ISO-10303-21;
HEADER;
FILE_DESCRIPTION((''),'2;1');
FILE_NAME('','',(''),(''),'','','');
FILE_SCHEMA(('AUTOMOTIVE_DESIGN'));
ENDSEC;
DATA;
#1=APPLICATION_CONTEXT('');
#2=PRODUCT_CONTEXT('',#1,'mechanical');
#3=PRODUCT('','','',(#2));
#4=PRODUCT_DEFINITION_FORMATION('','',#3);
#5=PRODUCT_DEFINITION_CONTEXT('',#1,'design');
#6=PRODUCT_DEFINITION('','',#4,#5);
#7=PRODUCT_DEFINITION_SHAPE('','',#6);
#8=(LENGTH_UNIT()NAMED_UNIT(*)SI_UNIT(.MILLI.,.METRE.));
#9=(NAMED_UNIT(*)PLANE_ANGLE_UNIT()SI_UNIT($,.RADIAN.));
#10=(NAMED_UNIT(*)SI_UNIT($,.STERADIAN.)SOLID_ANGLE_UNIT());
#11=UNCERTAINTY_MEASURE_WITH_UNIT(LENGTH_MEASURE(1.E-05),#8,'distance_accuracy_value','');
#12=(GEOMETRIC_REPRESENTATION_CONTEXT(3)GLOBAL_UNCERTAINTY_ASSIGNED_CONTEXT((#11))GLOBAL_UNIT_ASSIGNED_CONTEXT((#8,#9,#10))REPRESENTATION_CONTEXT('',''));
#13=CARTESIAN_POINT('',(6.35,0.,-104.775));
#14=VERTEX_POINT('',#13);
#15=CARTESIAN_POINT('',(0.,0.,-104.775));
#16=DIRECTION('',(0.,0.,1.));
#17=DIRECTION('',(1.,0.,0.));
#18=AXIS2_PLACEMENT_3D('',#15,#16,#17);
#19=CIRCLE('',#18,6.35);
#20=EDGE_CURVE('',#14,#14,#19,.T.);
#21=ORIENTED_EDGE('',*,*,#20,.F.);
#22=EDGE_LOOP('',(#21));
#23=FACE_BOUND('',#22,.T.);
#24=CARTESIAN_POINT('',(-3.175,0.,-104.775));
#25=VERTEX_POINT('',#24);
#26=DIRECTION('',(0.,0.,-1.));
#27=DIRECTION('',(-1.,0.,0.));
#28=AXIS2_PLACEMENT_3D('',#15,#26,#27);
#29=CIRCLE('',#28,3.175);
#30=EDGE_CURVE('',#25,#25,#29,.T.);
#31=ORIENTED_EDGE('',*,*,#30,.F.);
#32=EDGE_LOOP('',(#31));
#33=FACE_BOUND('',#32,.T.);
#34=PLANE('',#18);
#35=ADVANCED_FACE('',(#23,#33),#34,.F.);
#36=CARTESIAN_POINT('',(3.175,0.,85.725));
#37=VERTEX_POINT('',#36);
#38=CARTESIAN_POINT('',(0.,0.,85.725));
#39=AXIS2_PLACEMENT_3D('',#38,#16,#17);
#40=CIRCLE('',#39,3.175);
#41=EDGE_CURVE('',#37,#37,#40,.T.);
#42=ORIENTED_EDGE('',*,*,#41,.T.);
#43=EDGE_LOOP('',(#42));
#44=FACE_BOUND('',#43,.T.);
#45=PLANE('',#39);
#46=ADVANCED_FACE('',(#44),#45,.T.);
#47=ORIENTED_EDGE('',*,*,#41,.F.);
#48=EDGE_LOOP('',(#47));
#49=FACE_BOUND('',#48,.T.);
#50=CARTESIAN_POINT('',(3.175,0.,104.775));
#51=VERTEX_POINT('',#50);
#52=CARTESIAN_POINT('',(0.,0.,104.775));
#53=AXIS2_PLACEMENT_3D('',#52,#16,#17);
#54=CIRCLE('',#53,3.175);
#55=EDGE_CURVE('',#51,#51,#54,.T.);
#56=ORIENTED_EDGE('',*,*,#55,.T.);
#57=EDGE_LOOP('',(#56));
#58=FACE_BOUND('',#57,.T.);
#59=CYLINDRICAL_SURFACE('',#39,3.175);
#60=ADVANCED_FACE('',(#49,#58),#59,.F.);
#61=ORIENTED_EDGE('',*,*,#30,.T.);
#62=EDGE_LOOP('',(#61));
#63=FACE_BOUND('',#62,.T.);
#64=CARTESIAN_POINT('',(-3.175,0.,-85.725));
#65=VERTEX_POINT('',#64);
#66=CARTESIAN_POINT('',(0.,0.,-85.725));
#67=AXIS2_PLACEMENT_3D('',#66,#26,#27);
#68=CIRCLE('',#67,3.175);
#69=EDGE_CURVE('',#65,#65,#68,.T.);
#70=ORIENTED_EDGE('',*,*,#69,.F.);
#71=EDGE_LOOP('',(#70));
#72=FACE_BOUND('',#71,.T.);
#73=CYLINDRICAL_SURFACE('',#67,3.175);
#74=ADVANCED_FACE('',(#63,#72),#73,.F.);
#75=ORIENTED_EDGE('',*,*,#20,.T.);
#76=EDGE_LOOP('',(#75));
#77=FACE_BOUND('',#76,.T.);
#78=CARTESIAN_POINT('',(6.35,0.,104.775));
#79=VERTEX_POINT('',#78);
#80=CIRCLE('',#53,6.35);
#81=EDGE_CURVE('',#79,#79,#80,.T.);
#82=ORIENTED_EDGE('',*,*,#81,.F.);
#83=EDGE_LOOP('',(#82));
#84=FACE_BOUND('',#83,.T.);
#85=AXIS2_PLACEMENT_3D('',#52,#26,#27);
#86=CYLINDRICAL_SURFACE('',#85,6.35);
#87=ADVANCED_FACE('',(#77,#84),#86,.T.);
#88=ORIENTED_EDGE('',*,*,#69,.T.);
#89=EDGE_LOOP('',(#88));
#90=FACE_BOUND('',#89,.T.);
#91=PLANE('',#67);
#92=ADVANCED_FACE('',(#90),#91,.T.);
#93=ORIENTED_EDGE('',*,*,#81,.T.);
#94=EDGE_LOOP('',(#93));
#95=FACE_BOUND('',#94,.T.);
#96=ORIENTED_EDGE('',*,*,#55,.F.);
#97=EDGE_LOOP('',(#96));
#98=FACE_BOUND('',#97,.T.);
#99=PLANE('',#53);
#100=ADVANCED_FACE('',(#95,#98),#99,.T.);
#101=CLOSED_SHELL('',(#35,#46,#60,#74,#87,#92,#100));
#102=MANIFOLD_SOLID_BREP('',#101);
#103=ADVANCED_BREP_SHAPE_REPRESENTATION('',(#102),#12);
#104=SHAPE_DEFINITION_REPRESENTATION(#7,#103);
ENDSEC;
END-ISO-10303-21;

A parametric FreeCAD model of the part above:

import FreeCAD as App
import Part
import Sketcher
from FreeCAD import Vector
Q = App.Units.Quantity

doc = App.newDocument("Part")
params = doc.addObject("Spreadsheet::Sheet", "Params")
for row, (alias, value) in enumerate([
    ("sketch1_diameter", "0.5 in"),
    ("pad1_length", "8.25 in"),
    ("sketch2_diameter", "0.25 in"),
    ("pocket1_length", "0.75 in"),
    ("sketch3_diameter", "0.25 in"),
    ("pocket2_length", "0.75 in"),
], start=1):
    params.set(f"A{row}", alias)
    params.set(f"B{row}", "=" + value)
    params.setAlias(f"B{row}", alias)

body = doc.addObject("PartDesign::Body", "Body")

# Sketch on XY plane
sketch1 = body.newObject("Sketcher::SketchObject", "Sketch")
sketch1.AttachmentSupport = (doc.getObject("XY_Plane"), [""])
sketch1.MapMode = "FlatFace"
sketch1.addGeometry(Part.Circle(Vector(0, 0, 0), Vector(0, 0, 1), 6), False)
sketch1.addConstraint(Sketcher.Constraint("Coincident", 0, 3, -1, 1))
sketch1.addConstraint(Sketcher.Constraint("Diameter", 0, Q("0.5 in")))
sketch1.setExpression("Constraints[1]", "Params.sketch1_diameter")
pad1 = body.newObject("PartDesign::Pad", "Pad")
pad1.Profile = sketch1
pad1.setExpression("Length", "Params.pad1_length")
pad1.Midplane = True

# Sketch on XY plane
sketch2 = body.newObject("Sketcher::SketchObject", "Sketch001")
sketch2.AttachmentSupport = (doc.getObject("XY_Plane"), [""])
sketch2.MapMode = "FlatFace"
sketch2.AttachmentOffset = App.Placement(Vector(0, 0, -4.125 * 25.4), App.Rotation())
sketch2.addGeometry(Part.Circle(Vector(0, 0, 0), Vector(0, 0, 1), 3.2), False)
sketch2.addConstraint(Sketcher.Constraint("Coincident", 0, 3, -1, 1))
sketch2.addConstraint(Sketcher.Constraint("Diameter", 0, Q("0.25 in")))
sketch2.setExpression("Constraints[1]", "Params.sketch2_diameter")
pocket1 = body.newObject("PartDesign::Pocket", "Pocket")
pocket1.Profile = sketch2
pocket1.setExpression("Length", "Params.pocket1_length")
pocket1.Reversed = True

# Sketch on XY plane
sketch3 = body.newObject("Sketcher::SketchObject", "Sketch002")
sketch3.AttachmentSupport = (doc.getObject("XY_Plane"), [""])
sketch3.MapMode = "FlatFace"
sketch3.AttachmentOffset = App.Placement(Vector(0, 0, 4.125 * 25.4), App.Rotation())
sketch3.addGeometry(Part.Circle(Vector(0, 0, 0), Vector(0, 0, 1), 3.2), False)
sketch3.addConstraint(Sketcher.Constraint("Coincident", 0, 3, -1, 1))
sketch3.addConstraint(Sketcher.Constraint("Diameter", 0, Q("0.25 in")))
sketch3.setExpression("Constraints[1]", "Params.sketch3_diameter")
pocket2 = body.newObject("PartDesign::Pocket", "Pocket001")
pocket2.Profile = sketch3
pocket2.setExpression("Length", "Params.pocket2_length")

doc.recompute()
